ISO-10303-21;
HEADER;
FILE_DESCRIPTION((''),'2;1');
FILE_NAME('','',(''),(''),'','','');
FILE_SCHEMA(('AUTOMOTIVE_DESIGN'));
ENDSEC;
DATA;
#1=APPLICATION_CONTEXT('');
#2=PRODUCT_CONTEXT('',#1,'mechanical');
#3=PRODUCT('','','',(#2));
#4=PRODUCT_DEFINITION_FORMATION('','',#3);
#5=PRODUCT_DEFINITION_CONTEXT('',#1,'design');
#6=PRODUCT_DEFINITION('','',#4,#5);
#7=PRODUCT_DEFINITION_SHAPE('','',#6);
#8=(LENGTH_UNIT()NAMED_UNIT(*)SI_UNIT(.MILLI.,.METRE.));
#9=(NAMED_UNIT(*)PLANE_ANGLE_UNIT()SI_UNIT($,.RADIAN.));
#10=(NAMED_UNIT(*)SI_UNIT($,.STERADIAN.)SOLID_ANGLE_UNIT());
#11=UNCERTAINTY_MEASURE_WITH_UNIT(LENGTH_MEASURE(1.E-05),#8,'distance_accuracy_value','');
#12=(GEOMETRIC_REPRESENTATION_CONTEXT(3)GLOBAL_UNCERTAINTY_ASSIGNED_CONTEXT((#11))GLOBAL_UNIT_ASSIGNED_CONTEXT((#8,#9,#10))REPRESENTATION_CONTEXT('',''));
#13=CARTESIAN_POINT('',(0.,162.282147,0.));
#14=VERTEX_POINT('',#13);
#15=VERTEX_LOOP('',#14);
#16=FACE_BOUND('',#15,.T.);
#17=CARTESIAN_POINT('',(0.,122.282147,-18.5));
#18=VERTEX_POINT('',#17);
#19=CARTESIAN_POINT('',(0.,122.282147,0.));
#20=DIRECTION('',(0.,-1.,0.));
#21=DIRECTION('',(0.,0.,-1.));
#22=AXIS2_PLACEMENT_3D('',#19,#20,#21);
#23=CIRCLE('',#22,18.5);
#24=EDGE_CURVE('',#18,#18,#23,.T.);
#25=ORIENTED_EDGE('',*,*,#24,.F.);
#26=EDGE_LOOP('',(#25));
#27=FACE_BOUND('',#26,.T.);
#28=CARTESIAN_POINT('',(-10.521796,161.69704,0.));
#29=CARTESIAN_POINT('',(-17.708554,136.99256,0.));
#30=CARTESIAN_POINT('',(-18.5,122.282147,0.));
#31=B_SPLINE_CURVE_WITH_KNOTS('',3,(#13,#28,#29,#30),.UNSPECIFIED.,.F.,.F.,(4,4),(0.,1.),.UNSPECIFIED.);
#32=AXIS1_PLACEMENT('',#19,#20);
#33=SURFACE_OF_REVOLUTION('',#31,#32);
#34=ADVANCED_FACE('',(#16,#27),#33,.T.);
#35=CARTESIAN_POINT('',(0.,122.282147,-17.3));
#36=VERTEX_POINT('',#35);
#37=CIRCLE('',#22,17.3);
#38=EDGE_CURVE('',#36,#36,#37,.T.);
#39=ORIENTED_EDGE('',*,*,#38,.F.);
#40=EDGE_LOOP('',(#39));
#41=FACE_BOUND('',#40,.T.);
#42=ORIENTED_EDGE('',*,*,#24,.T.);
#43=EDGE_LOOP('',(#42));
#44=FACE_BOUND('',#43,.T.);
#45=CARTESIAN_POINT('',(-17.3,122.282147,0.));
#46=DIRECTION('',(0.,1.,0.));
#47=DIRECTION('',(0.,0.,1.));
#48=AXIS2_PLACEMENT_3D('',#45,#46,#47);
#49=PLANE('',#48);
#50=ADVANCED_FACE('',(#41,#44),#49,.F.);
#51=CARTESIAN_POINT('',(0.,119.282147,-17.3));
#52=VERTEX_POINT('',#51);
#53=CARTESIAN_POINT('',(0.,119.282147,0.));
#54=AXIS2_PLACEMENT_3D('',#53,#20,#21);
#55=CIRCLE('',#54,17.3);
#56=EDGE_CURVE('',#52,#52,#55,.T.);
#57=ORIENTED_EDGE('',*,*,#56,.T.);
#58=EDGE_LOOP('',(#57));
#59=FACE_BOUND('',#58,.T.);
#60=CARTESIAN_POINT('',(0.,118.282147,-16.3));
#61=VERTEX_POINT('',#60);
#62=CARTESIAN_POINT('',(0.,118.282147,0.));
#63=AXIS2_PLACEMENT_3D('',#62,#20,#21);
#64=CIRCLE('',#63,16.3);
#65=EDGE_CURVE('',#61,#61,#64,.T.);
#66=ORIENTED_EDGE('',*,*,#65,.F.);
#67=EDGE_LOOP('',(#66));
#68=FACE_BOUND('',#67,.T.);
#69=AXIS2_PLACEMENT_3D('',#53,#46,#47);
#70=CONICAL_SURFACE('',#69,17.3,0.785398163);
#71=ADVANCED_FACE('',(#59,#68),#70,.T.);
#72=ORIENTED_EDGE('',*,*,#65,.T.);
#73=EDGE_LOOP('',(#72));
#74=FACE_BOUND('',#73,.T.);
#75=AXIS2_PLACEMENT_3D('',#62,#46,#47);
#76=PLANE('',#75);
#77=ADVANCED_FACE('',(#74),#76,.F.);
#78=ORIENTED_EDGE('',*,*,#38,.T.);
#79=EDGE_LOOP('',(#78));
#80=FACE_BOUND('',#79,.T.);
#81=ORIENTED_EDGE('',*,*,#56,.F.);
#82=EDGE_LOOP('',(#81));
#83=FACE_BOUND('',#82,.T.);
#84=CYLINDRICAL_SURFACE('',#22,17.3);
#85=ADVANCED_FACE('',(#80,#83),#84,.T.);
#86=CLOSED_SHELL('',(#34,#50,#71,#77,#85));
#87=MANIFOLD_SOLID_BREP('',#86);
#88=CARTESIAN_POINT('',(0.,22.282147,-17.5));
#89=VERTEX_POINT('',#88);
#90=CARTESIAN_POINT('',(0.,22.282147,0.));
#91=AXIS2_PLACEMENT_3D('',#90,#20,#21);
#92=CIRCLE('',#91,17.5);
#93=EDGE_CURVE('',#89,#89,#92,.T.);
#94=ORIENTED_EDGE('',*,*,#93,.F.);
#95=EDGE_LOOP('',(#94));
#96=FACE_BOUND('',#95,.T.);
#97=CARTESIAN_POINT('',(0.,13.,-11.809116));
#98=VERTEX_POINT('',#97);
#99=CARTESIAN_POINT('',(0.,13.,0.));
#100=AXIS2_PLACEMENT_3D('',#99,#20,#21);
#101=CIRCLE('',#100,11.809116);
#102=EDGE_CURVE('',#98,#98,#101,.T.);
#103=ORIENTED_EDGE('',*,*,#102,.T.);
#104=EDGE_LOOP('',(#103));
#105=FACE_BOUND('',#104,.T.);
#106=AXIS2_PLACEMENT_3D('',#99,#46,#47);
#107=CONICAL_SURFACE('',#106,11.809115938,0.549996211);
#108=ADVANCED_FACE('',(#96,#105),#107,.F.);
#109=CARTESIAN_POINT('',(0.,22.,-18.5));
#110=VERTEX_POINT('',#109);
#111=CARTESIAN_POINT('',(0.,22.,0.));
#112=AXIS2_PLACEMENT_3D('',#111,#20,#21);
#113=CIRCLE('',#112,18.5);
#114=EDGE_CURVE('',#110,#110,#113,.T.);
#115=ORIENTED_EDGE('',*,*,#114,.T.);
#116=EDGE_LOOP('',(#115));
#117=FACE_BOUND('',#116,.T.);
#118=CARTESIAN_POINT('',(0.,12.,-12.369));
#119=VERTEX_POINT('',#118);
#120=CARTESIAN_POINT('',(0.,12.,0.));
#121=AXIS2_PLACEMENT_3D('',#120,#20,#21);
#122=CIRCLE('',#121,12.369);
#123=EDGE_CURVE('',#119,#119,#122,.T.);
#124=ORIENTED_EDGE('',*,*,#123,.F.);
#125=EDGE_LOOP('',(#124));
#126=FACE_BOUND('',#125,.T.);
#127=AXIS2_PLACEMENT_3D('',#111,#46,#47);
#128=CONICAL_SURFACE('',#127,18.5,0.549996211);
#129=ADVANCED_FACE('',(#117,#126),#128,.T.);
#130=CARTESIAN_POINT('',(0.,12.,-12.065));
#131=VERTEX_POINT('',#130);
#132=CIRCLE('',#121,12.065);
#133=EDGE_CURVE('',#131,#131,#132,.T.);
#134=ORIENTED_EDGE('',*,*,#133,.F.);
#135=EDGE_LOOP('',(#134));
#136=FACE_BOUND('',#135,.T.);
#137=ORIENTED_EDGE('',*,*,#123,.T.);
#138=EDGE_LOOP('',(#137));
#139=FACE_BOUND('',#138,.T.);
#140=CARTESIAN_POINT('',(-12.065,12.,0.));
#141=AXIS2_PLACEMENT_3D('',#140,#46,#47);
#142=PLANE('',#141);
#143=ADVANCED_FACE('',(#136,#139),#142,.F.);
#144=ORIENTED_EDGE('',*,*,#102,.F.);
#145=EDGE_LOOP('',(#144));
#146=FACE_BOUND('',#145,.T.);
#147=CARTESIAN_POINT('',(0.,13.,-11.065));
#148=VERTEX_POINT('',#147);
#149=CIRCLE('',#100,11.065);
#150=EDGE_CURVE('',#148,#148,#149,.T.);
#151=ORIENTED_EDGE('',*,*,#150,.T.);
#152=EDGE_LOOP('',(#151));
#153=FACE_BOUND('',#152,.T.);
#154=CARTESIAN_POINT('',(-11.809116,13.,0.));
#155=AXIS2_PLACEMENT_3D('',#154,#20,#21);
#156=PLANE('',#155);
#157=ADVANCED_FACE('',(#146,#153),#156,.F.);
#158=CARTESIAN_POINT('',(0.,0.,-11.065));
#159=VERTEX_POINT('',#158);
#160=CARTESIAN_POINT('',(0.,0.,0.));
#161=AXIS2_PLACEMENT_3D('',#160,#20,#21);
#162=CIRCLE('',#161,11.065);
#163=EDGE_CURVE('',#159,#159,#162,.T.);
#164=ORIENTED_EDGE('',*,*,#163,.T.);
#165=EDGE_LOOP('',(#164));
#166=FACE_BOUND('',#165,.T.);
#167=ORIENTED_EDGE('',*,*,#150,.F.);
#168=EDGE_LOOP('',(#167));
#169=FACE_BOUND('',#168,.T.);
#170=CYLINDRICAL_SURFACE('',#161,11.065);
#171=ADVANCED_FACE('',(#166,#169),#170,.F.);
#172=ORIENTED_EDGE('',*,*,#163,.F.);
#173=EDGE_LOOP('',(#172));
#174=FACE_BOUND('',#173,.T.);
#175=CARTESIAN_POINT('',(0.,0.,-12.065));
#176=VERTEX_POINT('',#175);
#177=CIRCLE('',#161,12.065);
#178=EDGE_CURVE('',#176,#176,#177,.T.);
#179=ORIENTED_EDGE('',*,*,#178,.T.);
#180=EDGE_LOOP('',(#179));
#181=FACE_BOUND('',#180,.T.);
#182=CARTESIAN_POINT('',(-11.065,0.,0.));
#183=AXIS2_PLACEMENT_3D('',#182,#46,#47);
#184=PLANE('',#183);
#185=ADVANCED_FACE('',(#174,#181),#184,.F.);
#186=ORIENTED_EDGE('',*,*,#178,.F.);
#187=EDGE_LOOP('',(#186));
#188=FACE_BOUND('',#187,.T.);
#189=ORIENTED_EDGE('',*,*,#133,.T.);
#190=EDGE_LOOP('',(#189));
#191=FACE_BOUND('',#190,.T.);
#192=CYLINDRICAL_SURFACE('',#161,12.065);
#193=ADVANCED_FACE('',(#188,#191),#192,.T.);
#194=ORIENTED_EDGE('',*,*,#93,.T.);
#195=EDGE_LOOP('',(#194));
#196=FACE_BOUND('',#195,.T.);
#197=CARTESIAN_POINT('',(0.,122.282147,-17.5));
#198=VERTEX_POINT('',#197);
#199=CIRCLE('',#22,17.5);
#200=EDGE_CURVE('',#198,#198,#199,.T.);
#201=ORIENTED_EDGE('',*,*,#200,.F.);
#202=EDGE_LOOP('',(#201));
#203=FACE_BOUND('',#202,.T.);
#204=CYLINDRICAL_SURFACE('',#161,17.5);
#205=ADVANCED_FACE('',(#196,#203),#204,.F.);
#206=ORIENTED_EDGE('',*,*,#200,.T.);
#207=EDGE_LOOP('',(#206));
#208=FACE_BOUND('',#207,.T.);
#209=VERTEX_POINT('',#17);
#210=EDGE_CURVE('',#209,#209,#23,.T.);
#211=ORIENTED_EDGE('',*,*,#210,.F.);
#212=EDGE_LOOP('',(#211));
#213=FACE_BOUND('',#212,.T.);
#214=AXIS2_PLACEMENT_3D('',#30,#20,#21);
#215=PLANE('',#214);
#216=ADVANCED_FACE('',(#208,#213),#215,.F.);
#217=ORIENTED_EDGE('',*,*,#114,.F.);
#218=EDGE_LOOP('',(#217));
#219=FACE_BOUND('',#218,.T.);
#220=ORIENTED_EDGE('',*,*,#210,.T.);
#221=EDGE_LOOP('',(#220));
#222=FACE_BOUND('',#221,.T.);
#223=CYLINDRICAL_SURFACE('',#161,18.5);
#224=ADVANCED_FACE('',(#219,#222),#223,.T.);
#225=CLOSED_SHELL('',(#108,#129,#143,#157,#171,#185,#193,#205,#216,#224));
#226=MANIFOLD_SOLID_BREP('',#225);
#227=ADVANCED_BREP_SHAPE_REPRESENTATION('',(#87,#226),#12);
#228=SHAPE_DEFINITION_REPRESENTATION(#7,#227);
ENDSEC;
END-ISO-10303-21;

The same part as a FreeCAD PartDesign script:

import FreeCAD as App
import Part
import Sketcher
from FreeCAD import Vector
Q = App.Units.Quantity

doc = App.newDocument("Part")
body = doc.addObject("PartDesign::Body", "Body")

# Sketch on XY plane
sketch1 = body.newObject("Sketcher::SketchObject", "Sketch")
sketch1.AttachmentSupport = (doc.getObject("XY_Plane"), [""])
sketch1.MapMode = "FlatFace"
sketch1.addGeometry([
    Part.LineSegment(Vector(-12.06, 12, 0), Vector(-12.06, 0, 0)),  # 0
    Part.LineSegment(Vector(-12.06, 0, 0), Vector(-11.06, 0, 0)),  # 1
    Part.LineSegment(Vector(-11.06, 0, 0), Vector(-11.06, 13, 0)),  # 2
    Part.LineSegment(Vector(-11.06, 13, 0), Vector(-11.81, 13, 0)),  # 3
    Part.LineSegment(Vector(-11.81, 13, 0), Vector(-17.5, 22.28, 0)),  # 4
    Part.LineSegment(Vector(-17.5, 22.28, 0), Vector(-17.5, 122.28, 0)),  # 5
    Part.LineSegment(Vector(-17.5, 122.28, 0), Vector(-18.5, 122.28, 0)),  # 6
    Part.LineSegment(Vector(-18.5, 122.28, 0), Vector(-18.5, 22, 0)),  # 7
    Part.LineSegment(Vector(-18.5, 22, 0), Vector(-12.37, 12, 0)),  # 8
    Part.LineSegment(Vector(-12.37, 12, 0), Vector(-12.06, 12, 0)),  # 9
], False)
sketch1.addConstraint([
    Sketcher.Constraint("Coincident", 0, 2, 1, 1),
    Sketcher.Constraint("Coincident", 1, 2, 2, 1),
    Sketcher.Constraint("Coincident", 2, 2, 3, 1),
    Sketcher.Constraint("Coincident", 3, 2, 4, 1),
    Sketcher.Constraint("Coincident", 4, 2, 5, 1),
    Sketcher.Constraint("Coincident", 5, 2, 6, 1),
    Sketcher.Constraint("Coincident", 6, 2, 7, 1),
    Sketcher.Constraint("Coincident", 7, 2, 8, 1),
    Sketcher.Constraint("Coincident", 8, 2, 9, 1),
    Sketcher.Constraint("Coincident", 9, 2, 0, 1),
    Sketcher.Constraint("Vertical", 0),
    Sketcher.Constraint("Horizontal", 1),
    Sketcher.Constraint("Vertical", 2),
    Sketcher.Constraint("Horizontal", 3),
    Sketcher.Constraint("Vertical", 5),
    Sketcher.Constraint("Horizontal", 6),
    Sketcher.Constraint("Vertical", 7),
    Sketcher.Constraint("Horizontal", 9),
    Sketcher.Constraint("PointOnObject", 0, 2, -1),
    Sketcher.Constraint("Parallel", 4, 8),
    Sketcher.Constraint("Equal", 1, 6),
    Sketcher.Constraint("DistanceX", 1, 1, 1, 2, Q("1 mm")),
    Sketcher.Constraint("DistanceY", 0, 2, 0, 1, Q("12 mm")),
    Sketcher.Constraint("DistanceY", 2, 1, 2, 2, Q("13 mm")),
    Sketcher.Constraint("DistanceY", 5, 1, 5, 2, Q("100 mm")),
    Sketcher.Constraint("DistanceY", -1, 1, 7, 2, Q("22 mm")),
    Sketcher.Constraint("DistanceX", 4, 2, -1, 1, Q("17.5 mm")),
    Sketcher.Constraint("DistanceX", 9, 1, 9, 2, Q("0.304 mm")),
    Sketcher.Constraint("DistanceX", 0, 2, -1, 1, Q("12.065 mm")),
    Sketcher.Constraint("Distance", 4, Q("10.88781 mm")),
])
revolution = body.newObject("PartDesign::Revolution", "Revolution")
revolution.Profile = sketch1
revolution.ReferenceAxis = (sketch1, ["V_Axis"])
revolution.Angle = 360
body2 = doc.addObject("PartDesign::Body", "Body001")

# Sketch on XY plane
sketch2 = body2.newObject("Sketcher::SketchObject", "Sketch001")
sketch2.AttachmentSupport = (doc.getObject("XY_Plane001"), [""])
sketch2.MapMode = "FlatFace"
sketch2.addGeometry([
    Part.LineSegment(Vector(-16.3, 118.282147, 0), Vector(0, 118.282147, 0)),  # 0
    Part.LineSegment(Vector(0, 118.282147, 0), Vector(0, 162.282147, 0)),  # 1
    Part.BSplineCurve([Vector(-18.5, 122.282147, 0), Vector(-17.708554, 136.99256, 0), Vector(-10.521796, 161.69704, 0), Vector(0, 162.282147, 0)], [4, 4], [0, 1], False, 3, [1, 1, 1, 1], False),  # 2
    Part.LineSegment(Vector(-18.5, 122.282147, 0), Vector(-17.3, 122.282147, 0)),  # 3
    Part.LineSegment(Vector(-17.3, 122.282147, 0), Vector(-17.3, 119.282147, 0)),  # 4
    Part.LineSegment(Vector(-17.3, 119.282147, 0), Vector(-16.3, 118.282147, 0)),  # 5
], False)
sketch2.addConstraint([
    Sketcher.Constraint("Block", 2),
    Sketcher.Constraint("Coincident", 0, 2, 1, 1),
    Sketcher.Constraint("Coincident", 1, 2, 2, 2),
    Sketcher.Constraint("Coincident", 2, 1, 3, 1),
    Sketcher.Constraint("Coincident", 3, 2, 4, 1),
    Sketcher.Constraint("Coincident", 4, 2, 5, 1),
    Sketcher.Constraint("Coincident", 5, 2, 0, 1),
    Sketcher.Constraint("Horizontal", 0),
    Sketcher.Constraint("Vertical", 1),
    Sketcher.Constraint("Horizontal", 3),
    Sketcher.Constraint("Vertical", 4),
    Sketcher.Constraint("DistanceY", 1, 1, 1, 2, Q("44 mm")),
    Sketcher.Constraint("DistanceY", 4, 2, 4, 1, Q("3 mm")),
    Sketcher.Constraint("Angle", 5, Q("-45 deg")),
    Sketcher.Constraint("DistanceX", 0, 1, 0, 2, Q("16.3 mm")),
])
revolution2 = body2.newObject("PartDesign::Revolution", "Revolution001")
revolution2.Profile = sketch2
revolution2.ReferenceAxis = (sketch2, ["V_Axis"])
revolution2.Angle = 360

doc.recompute()
